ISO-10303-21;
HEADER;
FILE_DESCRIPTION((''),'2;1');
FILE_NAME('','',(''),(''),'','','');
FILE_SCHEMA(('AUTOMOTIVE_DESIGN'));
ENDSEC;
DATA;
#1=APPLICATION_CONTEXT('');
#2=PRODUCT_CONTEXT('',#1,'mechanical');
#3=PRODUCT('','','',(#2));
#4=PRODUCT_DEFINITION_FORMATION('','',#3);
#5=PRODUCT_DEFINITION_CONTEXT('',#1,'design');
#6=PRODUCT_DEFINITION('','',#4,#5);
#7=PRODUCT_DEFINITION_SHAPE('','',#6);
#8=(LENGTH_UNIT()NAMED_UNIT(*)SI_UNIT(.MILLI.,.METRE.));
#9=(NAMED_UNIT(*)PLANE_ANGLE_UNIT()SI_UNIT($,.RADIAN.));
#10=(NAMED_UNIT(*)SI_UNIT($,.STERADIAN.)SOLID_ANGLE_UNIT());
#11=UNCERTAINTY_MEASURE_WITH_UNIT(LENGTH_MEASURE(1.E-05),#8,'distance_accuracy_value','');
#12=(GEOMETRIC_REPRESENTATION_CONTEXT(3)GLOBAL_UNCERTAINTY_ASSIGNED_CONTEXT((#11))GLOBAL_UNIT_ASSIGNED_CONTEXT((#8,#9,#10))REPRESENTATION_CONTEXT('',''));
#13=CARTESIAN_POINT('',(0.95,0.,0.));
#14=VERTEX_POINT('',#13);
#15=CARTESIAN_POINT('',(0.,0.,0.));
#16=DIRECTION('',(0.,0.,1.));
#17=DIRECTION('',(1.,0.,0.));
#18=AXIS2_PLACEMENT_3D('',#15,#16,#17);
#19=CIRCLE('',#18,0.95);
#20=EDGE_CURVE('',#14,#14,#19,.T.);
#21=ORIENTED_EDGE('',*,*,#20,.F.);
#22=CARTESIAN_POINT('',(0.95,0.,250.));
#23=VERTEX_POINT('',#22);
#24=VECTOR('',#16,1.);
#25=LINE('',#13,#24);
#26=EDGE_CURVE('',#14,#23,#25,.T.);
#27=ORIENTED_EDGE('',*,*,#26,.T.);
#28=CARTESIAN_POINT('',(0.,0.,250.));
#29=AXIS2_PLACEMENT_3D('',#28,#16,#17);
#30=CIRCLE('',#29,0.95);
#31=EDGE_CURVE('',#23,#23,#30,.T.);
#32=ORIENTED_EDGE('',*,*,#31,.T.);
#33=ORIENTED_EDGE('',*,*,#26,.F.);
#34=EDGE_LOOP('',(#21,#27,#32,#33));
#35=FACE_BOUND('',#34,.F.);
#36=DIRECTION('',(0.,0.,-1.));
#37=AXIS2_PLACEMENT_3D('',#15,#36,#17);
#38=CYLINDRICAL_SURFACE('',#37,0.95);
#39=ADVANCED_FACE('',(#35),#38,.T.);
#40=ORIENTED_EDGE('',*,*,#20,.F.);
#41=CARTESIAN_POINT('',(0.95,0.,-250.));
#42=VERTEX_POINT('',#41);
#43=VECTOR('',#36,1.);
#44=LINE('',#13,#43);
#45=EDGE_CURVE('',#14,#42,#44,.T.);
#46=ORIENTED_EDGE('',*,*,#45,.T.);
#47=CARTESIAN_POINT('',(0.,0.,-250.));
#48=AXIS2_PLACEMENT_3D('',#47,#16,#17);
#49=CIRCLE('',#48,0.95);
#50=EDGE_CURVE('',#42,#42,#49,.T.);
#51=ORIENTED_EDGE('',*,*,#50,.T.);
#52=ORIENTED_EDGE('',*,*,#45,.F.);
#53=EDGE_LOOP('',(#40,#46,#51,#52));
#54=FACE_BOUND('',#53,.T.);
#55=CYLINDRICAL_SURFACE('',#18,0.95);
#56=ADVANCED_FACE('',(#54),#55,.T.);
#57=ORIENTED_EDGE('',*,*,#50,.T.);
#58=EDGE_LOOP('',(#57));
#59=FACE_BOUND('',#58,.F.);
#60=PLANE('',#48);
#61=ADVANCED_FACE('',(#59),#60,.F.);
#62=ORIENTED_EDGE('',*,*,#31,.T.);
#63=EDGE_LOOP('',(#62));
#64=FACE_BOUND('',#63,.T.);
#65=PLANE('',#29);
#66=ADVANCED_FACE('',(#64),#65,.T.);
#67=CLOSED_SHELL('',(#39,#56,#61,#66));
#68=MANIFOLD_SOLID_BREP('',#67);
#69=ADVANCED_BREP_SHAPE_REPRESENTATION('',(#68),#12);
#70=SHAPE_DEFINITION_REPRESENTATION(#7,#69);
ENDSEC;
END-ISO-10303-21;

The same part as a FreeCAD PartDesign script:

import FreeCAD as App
import Part
import Sketcher
Q = App.Units.Quantity

doc = App.newDocument("Part")
body = doc.addObject("PartDesign::Body", "Body")

sketch1 = body.newObject("Sketcher::SketchObject", "Sketch")
sketch1.AttachmentSupport = (doc.getObject("XY_Plane"), [""])
sketch1.MapMode = "FlatFace"
sketch1.addGeometry(Part.Circle(App.Vector(0, 0, 0), App.Vector(0, 0, 1), 0.95), False)
sketch1.addConstraint(Sketcher.Constraint("Coincident", 0, 3, -1, 1))
sketch1.addConstraint(Sketcher.Constraint("Diameter", 0, Q("1.9 mm")))
pad1 = body.newObject("PartDesign::Pad", "Pad")
pad1.Profile = sketch1
pad1.Length = 500
pad1.Midplane = True

doc.recompute()
